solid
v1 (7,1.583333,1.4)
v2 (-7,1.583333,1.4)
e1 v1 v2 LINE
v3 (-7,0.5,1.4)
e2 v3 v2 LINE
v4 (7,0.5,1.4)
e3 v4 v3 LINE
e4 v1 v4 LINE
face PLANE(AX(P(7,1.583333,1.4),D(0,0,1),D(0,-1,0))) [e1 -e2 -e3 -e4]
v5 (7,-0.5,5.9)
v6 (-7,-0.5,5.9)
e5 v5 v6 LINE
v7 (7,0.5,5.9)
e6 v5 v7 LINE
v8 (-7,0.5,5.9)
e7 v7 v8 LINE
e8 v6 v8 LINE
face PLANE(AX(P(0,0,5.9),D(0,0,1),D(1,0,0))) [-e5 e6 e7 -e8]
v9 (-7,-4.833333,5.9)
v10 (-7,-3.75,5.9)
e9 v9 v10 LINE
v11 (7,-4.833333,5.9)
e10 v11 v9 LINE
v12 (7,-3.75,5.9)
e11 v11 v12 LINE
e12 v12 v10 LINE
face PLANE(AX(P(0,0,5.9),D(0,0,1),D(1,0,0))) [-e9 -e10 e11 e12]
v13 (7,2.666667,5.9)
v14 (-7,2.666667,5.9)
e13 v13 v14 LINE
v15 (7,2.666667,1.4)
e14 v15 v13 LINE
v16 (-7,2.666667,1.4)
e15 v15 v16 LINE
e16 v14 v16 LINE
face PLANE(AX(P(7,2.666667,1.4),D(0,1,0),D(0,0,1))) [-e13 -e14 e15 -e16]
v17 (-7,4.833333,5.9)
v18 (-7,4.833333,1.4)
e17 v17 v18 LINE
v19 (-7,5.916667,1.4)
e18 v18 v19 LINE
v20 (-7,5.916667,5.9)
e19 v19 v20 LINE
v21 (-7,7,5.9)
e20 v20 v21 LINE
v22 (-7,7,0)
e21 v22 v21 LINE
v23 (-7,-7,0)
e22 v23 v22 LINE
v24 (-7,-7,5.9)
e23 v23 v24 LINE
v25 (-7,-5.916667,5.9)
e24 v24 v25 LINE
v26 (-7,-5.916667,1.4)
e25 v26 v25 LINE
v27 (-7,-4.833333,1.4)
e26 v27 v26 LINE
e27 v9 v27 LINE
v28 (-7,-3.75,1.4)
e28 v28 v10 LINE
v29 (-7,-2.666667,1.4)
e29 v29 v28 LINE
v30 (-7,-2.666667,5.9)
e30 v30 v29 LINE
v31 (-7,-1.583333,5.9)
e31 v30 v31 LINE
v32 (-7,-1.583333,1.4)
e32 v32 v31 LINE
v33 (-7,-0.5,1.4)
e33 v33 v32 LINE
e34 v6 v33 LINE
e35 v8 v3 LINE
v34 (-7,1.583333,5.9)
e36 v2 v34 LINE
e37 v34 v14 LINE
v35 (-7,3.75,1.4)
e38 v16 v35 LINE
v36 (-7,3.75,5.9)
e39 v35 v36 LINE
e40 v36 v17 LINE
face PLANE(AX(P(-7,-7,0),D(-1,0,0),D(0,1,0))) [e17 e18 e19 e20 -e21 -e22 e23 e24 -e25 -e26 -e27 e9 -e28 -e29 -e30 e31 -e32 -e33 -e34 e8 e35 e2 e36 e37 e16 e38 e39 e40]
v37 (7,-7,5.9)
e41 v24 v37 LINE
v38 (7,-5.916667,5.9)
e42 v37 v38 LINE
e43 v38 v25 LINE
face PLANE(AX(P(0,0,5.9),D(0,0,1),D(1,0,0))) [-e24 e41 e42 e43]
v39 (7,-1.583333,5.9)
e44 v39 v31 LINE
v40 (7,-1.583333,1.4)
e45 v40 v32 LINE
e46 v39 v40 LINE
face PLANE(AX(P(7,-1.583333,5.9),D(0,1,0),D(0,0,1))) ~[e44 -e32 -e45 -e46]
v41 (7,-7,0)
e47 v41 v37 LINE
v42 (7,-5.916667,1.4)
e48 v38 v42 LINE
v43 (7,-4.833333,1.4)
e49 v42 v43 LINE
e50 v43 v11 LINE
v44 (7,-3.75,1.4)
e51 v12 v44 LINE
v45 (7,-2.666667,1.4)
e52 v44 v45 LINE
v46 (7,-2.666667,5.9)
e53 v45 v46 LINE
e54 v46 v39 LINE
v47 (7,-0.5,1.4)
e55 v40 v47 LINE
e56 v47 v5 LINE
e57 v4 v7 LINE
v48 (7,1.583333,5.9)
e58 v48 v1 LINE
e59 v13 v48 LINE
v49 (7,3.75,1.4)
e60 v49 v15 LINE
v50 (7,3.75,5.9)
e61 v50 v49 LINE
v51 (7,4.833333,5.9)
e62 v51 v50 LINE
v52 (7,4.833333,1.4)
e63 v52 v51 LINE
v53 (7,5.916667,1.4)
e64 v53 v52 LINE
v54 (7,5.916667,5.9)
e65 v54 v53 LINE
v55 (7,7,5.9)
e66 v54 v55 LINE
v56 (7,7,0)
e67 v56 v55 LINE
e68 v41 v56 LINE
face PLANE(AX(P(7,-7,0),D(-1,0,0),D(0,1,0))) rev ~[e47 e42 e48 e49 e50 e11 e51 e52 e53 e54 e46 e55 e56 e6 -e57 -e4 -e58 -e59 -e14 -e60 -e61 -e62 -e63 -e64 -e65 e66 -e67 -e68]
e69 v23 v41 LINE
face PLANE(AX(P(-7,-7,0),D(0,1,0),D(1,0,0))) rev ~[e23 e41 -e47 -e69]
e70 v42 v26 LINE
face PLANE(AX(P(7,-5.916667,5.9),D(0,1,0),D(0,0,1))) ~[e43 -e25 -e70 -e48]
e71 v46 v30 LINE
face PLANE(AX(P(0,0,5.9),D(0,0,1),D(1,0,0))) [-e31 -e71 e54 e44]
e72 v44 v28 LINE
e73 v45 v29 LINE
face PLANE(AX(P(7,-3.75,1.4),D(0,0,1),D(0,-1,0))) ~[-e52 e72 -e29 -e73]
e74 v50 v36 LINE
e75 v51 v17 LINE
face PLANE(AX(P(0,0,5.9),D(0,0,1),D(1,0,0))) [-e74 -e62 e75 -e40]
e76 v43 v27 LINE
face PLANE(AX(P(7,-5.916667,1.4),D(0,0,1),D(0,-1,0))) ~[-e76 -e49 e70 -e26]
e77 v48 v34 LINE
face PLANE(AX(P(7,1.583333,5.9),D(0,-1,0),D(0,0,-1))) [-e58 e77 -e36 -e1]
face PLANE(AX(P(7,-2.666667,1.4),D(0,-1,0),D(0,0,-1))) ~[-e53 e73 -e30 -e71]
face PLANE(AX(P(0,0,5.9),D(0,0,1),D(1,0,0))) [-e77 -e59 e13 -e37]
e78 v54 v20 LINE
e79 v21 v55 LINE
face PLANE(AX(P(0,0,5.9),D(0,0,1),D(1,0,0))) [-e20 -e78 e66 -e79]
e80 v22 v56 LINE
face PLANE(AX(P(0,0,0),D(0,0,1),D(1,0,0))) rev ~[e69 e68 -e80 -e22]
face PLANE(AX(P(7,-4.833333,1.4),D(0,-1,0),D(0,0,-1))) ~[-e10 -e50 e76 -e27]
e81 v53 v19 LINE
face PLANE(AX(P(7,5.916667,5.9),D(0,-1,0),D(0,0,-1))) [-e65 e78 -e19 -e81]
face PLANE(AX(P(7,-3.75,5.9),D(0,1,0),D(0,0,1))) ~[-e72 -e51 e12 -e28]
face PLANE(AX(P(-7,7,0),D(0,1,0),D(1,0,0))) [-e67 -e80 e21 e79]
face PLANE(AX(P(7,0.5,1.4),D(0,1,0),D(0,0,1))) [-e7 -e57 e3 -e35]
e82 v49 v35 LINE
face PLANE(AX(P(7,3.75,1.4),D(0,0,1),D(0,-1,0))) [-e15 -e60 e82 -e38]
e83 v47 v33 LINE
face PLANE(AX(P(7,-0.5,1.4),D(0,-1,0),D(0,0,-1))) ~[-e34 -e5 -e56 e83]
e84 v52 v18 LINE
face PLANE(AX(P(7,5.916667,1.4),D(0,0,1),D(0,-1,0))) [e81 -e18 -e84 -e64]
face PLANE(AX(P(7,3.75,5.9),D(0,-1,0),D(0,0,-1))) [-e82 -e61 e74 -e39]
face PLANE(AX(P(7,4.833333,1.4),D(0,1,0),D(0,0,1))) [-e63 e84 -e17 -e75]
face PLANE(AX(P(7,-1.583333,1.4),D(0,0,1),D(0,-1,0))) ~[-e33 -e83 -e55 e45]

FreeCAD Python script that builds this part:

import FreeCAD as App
import Part
import Sketcher

doc = App.newDocument("Part")
body = doc.addObject("PartDesign::Body", "Body")

sketch1 = body.newObject("Sketcher::SketchObject", "Sketch")
sketch1.AttachmentSupport = (doc.getObject("XY_Plane"), [""])
sketch1.MapMode = "FlatFace"
sketch1.addGeometry([
    Part.LineSegment(App.Vector(-7, 7, 0), App.Vector(-7, -7, 0)),
    Part.LineSegment(App.Vector(-7, -7, 0), App.Vector(7, -7, 0)),
    Part.LineSegment(App.Vector(7, -7, 0), App.Vector(7, 7, 0)),
    Part.LineSegment(App.Vector(7, 7, 0), App.Vector(-7, 7, 0)),
], False)
sketch1.addConstraint([
    Sketcher.Constraint("Coincident", 0, 2, 1, 1),
    Sketcher.Constraint("Coincident", 1, 2, 2, 1),
    Sketcher.Constraint("Coincident", 2, 2, 3, 1),
    Sketcher.Constraint("Coincident", 3, 2, 0, 1),
    Sketcher.Constraint("Vertical", 0),
    Sketcher.Constraint("Horizontal", 1),
    Sketcher.Constraint("Vertical", 2),
    Sketcher.Constraint("Horizontal", 3),
    Sketcher.Constraint("Symmetric", 0, 2, 2, 2, -1, 1),
    Sketcher.Constraint("Equal", 3, 0),
    Sketcher.Constraint("DistanceX", 1, 1, 1, 2, 14.0),
])
pad1 = body.newObject("PartDesign::Pad", "Pad")
pad1.Profile = sketch1
pad1.Length = 5.9

sketch2 = body.newObject("Sketcher::SketchObject", "Sketch001")
sketch2.AttachmentSupport = (doc.getObject("YZ_Plane"), [""])
sketch2.MapMode = "FlatFace"
sketch2.AttachmentOffset = App.Placement(App.Vector(0, 0, 7), App.Rotation())
sketch2.addGeometry([
    Part.LineSegment(App.Vector(7, 6.9, 0), App.Vector(0, 6.9, 0)),
    Part.LineSegment(App.Vector(0, 6.9, 0), App.Vector(0, 5.9, 0)),
    Part.LineSegment(App.Vector(0, 5.9, 0), App.Vector(0.5, 5.9, 0)),
    Part.LineSegment(App.Vector(0.5, 5.9, 0), App.Vector(0.5, 1.4, 0)),
    Part.LineSegment(App.Vector(0.5, 1.4, 0), App.Vector(1.6, 1.4, 0)),
    Part.LineSegment(App.Vector(1.6, 1.4, 0), App.Vector(1.6, 5.9, 0)),
    Part.LineSegment(App.Vector(1.6, 5.9, 0), App.Vector(2.7, 5.9, 0)),
    Part.LineSegment(App.Vector(2.7, 5.9, 0), App.Vector(2.7, 1.4, 0)),
    Part.LineSegment(App.Vector(2.7, 1.4, 0), App.Vector(3.8, 1.4, 0)),
    Part.LineSegment(App.Vector(3.8, 1.4, 0), App.Vector(3.8, 5.9, 0)),
    Part.LineSegment(App.Vector(3.8, 5.9, 0), App.Vector(4.8, 5.9, 0)),
    Part.LineSegment(App.Vector(4.8, 5.9, 0), App.Vector(4.8, 1.4, 0)),
    Part.LineSegment(App.Vector(4.8, 1.4, 0), App.Vector(5.9, 1.4, 0)),
    Part.LineSegment(App.Vector(5.9, 1.4, 0), App.Vector(5.9, 5.9, 0)),
    Part.LineSegment(App.Vector(5.9, 5.9, 0), App.Vector(7, 5.9, 0)),
    Part.LineSegment(App.Vector(7, 5.9, 0), App.Vector(7, 6.9, 0)),
], False)
sketch2.addConstraint([
    Sketcher.Constraint("Coincident", 0, 2, 1, 1),
    Sketcher.Constraint("Coincident", 1, 2, 2, 1),
    Sketcher.Constraint("Coincident", 2, 2, 3, 1),
    Sketcher.Constraint("Coincident", 3, 2, 4, 1),
    Sketcher.Constraint("Coincident", 4, 2, 5, 1),
    Sketcher.Constraint("Coincident", 5, 2, 6, 1),
    Sketcher.Constraint("Coincident", 6, 2, 7, 1),
    Sketcher.Constraint("Coincident", 7, 2, 8, 1),
    Sketcher.Constraint("Coincident", 8, 2, 9, 1),
    Sketcher.Constraint("Coincident", 9, 2, 10, 1),
    Sketcher.Constraint("Coincident", 10, 2, 11, 1),
    Sketcher.Constraint("Coincident", 11, 2, 12, 1),
    Sketcher.Constraint("Coincident", 12, 2, 13, 1),
    Sketcher.Constraint("Coincident", 13, 2, 14, 1),
    Sketcher.Constraint("Coincident", 14, 2, 15, 1),
    Sketcher.Constraint("Coincident", 15, 2, 0, 1),
    Sketcher.Constraint("Horizontal", 0),
    Sketcher.Constraint("Vertical", 1),
    Sketcher.Constraint("Horizontal", 2),
    Sketcher.Constraint("Vertical", 3),
    Sketcher.Constraint("Horizontal", 4),
    Sketcher.Constraint("Vertical", 5),
    Sketcher.Constraint("Horizontal", 6),
    Sketcher.Constraint("Vertical", 7),
    Sketcher.Constraint("Horizontal", 8),
    Sketcher.Constraint("Vertical", 9),
    Sketcher.Constraint("Horizontal", 10),
    Sketcher.Constraint("Vertical", 11),
    Sketcher.Constraint("Horizontal", 12),
    Sketcher.Constraint("Vertical", 13),
    Sketcher.Constraint("Horizontal", 14),
    Sketcher.Constraint("Vertical", 15),
    Sketcher.Constraint("PointOnObject", 0, 2, -2),
    Sketcher.Constraint("Horizontal", 2, 2, 5, 2),
    Sketcher.Constraint("Horizontal", 4, 2, 7, 2),
    Sketcher.Constraint("Horizontal", 6, 2, 9, 2),
    Sketcher.Constraint("Horizontal", 8, 2, 11, 2),
    Sketcher.Constraint("Horizontal", 10, 2, 13, 2),
    Sketcher.Constraint("Equal", 4, 6),
    Sketcher.Constraint("Equal", 6, 8),
    Sketcher.Constraint("Equal", 8, 10),
    Sketcher.Constraint("Equal", 10, 12),
    Sketcher.Constraint("Equal", 12, 14),
    Sketcher.Constraint("DistanceX", 0, 2, 0, 1, 7.0),
    Sketcher.Constraint("DistanceY", 1, 2, 1, 1, 1.0),
    Sketcher.Constraint("DistanceX", 2, 1, 2, 2, 0.5),
    Sketcher.Constraint("DistanceY", 3, 2, 3, 1, 4.5),
    Sketcher.Constraint("DistanceY", -1, 1, 0, 2, 6.9),
])
pocket1 = body.newObject("PartDesign::Pocket", "Pocket")
pocket1.Profile = sketch2
pocket1.Type = "ThroughAll"
doc.recompute()

mirrored = body.newObject("PartDesign::Mirrored", "Mirrored")
mirrored.Originals = [pocket1]
mirrored.MirrorPlane = (doc.getObject("XZ_Plane"), [""])
body.Tip = mirrored

doc.recompute()
